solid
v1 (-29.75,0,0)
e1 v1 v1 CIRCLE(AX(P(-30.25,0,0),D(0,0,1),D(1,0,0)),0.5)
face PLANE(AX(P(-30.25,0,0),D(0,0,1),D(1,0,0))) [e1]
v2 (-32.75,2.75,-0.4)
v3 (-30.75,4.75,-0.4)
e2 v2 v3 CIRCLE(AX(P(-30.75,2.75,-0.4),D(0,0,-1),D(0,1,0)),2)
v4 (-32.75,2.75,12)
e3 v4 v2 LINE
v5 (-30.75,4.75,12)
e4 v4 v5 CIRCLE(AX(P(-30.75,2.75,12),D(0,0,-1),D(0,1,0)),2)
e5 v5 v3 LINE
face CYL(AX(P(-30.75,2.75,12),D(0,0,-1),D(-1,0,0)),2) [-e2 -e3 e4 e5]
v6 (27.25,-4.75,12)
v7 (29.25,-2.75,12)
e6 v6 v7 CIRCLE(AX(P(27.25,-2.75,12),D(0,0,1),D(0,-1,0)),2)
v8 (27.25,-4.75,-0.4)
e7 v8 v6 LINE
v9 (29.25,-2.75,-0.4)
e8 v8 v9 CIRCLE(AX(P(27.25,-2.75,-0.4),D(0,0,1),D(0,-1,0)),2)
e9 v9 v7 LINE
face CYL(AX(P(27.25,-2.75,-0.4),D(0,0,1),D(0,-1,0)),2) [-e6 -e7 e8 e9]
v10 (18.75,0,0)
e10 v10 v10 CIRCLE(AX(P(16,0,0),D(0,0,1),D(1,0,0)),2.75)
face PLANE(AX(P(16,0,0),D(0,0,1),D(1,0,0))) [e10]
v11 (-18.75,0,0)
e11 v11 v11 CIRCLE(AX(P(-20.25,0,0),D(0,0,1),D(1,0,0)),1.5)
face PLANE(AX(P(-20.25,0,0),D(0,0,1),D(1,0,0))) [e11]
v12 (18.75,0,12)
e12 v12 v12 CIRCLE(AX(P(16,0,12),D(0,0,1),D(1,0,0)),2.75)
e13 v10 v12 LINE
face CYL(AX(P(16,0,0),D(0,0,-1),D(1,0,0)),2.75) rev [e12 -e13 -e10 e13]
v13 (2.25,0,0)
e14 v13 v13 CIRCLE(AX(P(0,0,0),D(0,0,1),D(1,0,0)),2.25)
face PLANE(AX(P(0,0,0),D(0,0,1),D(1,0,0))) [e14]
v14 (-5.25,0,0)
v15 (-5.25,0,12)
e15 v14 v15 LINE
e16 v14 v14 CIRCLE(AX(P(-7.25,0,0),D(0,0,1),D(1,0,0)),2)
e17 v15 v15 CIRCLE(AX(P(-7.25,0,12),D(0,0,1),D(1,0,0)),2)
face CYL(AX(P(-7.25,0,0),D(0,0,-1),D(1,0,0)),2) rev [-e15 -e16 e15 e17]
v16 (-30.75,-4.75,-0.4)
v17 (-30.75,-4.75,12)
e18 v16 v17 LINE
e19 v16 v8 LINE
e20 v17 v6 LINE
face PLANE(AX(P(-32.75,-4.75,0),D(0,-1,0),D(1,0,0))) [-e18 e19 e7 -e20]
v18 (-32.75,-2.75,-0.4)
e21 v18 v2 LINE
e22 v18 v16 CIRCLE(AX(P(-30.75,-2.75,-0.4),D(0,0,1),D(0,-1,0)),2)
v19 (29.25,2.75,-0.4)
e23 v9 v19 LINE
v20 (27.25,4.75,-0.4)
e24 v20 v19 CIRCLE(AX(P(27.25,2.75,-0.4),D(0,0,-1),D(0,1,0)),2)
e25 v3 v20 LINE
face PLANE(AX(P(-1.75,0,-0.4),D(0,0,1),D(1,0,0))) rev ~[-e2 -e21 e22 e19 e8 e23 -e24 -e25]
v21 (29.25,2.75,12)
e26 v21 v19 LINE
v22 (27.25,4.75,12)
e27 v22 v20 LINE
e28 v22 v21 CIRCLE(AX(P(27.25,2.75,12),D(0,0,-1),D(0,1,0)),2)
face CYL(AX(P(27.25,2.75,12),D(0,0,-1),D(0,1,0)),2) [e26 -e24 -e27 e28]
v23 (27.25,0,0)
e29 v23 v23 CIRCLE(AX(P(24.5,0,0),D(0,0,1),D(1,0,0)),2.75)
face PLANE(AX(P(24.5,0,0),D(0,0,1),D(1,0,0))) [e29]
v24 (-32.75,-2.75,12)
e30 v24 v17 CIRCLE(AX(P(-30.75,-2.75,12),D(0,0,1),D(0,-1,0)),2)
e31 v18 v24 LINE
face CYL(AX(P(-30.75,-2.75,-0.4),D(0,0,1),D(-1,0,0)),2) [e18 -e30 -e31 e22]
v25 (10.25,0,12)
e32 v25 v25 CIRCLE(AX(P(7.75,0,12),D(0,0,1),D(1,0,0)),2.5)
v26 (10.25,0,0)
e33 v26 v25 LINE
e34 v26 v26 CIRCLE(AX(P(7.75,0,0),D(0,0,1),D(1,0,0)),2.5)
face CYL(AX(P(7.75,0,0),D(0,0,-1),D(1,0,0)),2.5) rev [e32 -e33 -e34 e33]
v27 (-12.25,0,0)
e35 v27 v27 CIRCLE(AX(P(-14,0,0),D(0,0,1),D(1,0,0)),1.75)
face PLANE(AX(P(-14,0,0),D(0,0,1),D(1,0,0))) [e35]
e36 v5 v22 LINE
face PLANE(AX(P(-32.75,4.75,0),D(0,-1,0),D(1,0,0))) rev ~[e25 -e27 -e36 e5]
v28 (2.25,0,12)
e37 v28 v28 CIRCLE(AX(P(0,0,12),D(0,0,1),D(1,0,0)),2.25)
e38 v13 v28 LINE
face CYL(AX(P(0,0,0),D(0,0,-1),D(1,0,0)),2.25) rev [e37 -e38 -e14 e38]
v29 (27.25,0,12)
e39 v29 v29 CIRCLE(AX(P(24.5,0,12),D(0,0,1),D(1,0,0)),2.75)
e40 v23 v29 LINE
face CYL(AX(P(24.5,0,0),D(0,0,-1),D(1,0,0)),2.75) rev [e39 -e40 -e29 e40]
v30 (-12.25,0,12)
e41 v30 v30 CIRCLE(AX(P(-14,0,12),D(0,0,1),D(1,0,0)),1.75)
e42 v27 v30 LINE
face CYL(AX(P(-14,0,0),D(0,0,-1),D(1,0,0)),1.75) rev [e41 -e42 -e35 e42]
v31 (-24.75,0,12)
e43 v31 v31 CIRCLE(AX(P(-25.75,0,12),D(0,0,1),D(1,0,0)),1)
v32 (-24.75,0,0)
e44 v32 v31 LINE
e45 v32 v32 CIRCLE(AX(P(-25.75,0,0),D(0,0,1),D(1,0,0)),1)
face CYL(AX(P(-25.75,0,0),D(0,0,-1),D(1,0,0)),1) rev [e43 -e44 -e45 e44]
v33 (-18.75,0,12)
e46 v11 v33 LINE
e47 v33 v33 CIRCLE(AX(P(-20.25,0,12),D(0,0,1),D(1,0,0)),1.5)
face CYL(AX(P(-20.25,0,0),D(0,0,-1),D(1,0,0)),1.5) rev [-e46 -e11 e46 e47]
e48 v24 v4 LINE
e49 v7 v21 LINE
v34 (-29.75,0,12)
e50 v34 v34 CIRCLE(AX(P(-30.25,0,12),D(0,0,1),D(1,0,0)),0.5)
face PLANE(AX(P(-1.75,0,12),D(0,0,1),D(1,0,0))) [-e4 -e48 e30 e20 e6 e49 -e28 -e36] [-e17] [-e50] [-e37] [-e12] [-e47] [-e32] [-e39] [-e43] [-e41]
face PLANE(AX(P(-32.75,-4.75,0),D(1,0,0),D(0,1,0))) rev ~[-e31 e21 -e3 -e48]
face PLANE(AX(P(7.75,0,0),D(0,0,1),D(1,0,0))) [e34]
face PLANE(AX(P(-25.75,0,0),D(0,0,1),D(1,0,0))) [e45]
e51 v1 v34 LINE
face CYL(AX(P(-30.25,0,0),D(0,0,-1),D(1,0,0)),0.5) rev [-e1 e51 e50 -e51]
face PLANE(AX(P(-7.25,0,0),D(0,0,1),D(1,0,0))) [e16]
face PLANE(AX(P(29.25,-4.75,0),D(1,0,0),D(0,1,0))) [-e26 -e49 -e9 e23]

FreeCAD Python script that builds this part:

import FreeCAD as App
import Part
import Sketcher

V = App.Vector
Q = App.Units.Quantity


def edges_at(feature, points):
    """Names of the edges that pass closest to the given points."""
    edges = feature.Shape.Edges
    near = lambda p: min(range(len(edges)), key=lambda i: edges[i].distToShape(Part.Vertex(*p))[0])
    return sorted({f"Edge{near(p) + 1}" for p in points})

doc = App.newDocument("Part")
body = doc.addObject("PartDesign::Body", "Body")

# Sketch on XY plane
sketch1 = body.newObject("Sketcher::SketchObject", "Sketch")
sketch1.AttachmentSupport = (doc.getObject("XY_Plane"), [""])
sketch1.MapMode = "FlatFace"
sketch1.addGeometry(Part.LineSegment(V(-32.8, 4.8, 0), V(-32.8, -4.8, 0)), False)
sketch1.addGeometry(Part.LineSegment(V(-32.8, -4.8, 0), V(29.2, -4.8, 0)), False)
sketch1.addGeometry(Part.LineSegment(V(29.2, -4.8, 0), V(29.2, 4.8, 0)), False)
sketch1.addGeometry(Part.LineSegment(V(29.2, 4.8, 0), V(-32.8, 4.8, 0)), False)
sketch1.addGeometry(Part.Circle(V(-30.2, 0, 0), V(0, 0, 1), 0.5), False)
sketch1.addGeometry(Part.Circle(V(-25.8, 0, 0), V(0, 0, 1), 1), False)
sketch1.addGeometry(Part.Circle(V(-20.2, 0, 0), V(0, 0, 1), 1.5), False)
sketch1.addGeometry(Part.Circle(V(-14, 0, 0), V(0, 0, 1), 1.8), False)
sketch1.addGeometry(Part.Circle(V(-7.2, 0, 0), V(0, 0, 1), 2), False)
sketch1.addGeometry(Part.Circle(V(0, 0, 0), V(0, 0, 1), 2.2), False)
sketch1.addGeometry(Part.Circle(V(7.8, 0, 0), V(0, 0, 1), 2.5), False)
sketch1.addGeometry(Part.Circle(V(16, 0, 0), V(0, 0, 1), 2.8), False)
sketch1.addGeometry(Part.Circle(V(24.5, 0, 0), V(0, 0, 1), 2.8), False)
sketch1.addConstraint(Sketcher.Constraint("Coincident", 0, 2, 1, 1))
sketch1.addConstraint(Sketcher.Constraint("Coincident", 1, 2, 2, 1))
sketch1.addConstraint(Sketcher.Constraint("Coincident", 2, 2, 3, 1))
sketch1.addConstraint(Sketcher.Constraint("Coincident", 3, 2, 0, 1))
sketch1.addConstraint(Sketcher.Constraint("Vertical", 0))
sketch1.addConstraint(Sketcher.Constraint("Horizontal", 1))
sketch1.addConstraint(Sketcher.Constraint("Vertical", 2))
sketch1.addConstraint(Sketcher.Constraint("Horizontal", 3))
sketch1.addConstraint(Sketcher.Constraint("Coincident", 9, 3, -1, 1))
sketch1.addConstraint(Sketcher.Constraint("Equal", 11, 12))
sketch1.addConstraint(Sketcher.Constraint("PointOnObject", 4, 3, -1))
sketch1.addConstraint(Sketcher.Constraint("PointOnObject", 5, 3, -1))
sketch1.addConstraint(Sketcher.Constraint("PointOnObject", 6, 3, -1))
sketch1.addConstraint(Sketcher.Constraint("PointOnObject", 7, 3, -1))
sketch1.addConstraint(Sketcher.Constraint("PointOnObject", 8, 3, -1))
sketch1.addConstraint(Sketcher.Constraint("PointOnObject", 10, 3, -1))
sketch1.addConstraint(Sketcher.Constraint("PointOnObject", 11, 3, -1))
sketch1.addConstraint(Sketcher.Constraint("PointOnObject", 12, 3, -1))
sketch1.addConstraint(Sketcher.Constraint("Diameter", 4, Q("1 mm")))
sketch1.addConstraint(Sketcher.Constraint("Diameter", 5, Q("2 mm")))
sketch1.addConstraint(Sketcher.Constraint("Diameter", 6, Q("3 mm")))
sketch1.addConstraint(Sketcher.Constraint("Diameter", 8, Q("4 mm")))
sketch1.addConstraint(Sketcher.Constraint("Diameter", 10, Q("5 mm")))
sketch1.addConstraint(Sketcher.Constraint("Diameter", 7, Q("3.5 mm")))
sketch1.addConstraint(Sketcher.Constraint("Diameter", 9, Q("4.5 mm")))
sketch1.addConstraint(Sketcher.Constraint("Diameter", 11, Q("5.5 mm")))
sketch1.addConstraint(Sketcher.Constraint("DistanceX", 1, 1, 1, 2, Q("62 mm")))
sketch1.addConstraint(Sketcher.Constraint("DistanceY", 0, 2, 0, 1, Q("9.5 mm")))
sketch1.addConstraint(Sketcher.Constraint("DistanceX", 7, 3, -1, 1, Q("14 mm")))
sketch1.addConstraint(Sketcher.Constraint("DistanceX", -1, 1, 11, 3, Q("16 mm")))
sketch1.addConstraint(Sketcher.Constraint("DistanceX", 4, 3, 6, 3, Q("10 mm")))
sketch1.addConstraint(Sketcher.Constraint("DistanceX", 6, 3, 8, 3, Q("13 mm")))
sketch1.addConstraint(Sketcher.Constraint("DistanceX", 8, 3, 10, 3, Q("15 mm")))
sketch1.addConstraint(Sketcher.Constraint("DistanceX", 0, 2, 5, 3, Q("7 mm")))
sketch1.addConstraint(Sketcher.Constraint("DistanceX", -1, 1, 12, 3, Q("24.5 mm")))
sketch1.addConstraint(Sketcher.Constraint("DistanceX", 4, 3, 5, 3, Q("4.5 mm")))
sketch1.addConstraint(Sketcher.Constraint("DistanceX", 4, 3, -1, 1, Q("30.25 mm")))
sketch1.addConstraint(Sketcher.Constraint("DistanceY", 0, 2, -1, 1, Q("4.75 mm")))
pad1 = body.newObject("PartDesign::Pad", "Pad")
pad1.Profile = sketch1
pad1.Type = "TwoLengths"
pad1.Length = 12
pad1.Length2 = 0.4

# Sketch on XY plane
sketch2 = body.newObject("Sketcher::SketchObject", "Sketch001")
sketch2.AttachmentSupport = (doc.getObject("XY_Plane"), [""])
sketch2.MapMode = "FlatFace"
sketch2.addGeometry(Part.Circle(V(-25.8, 0, 0), V(0, 0, 1), 1), False)
sketch2.addGeometry(Part.Circle(V(-20.2, 0, 0), V(0, 0, 1), 1.5), False)
sketch2.addGeometry(Part.Circle(V(-30.2, 0, 0), V(0, 0, 1), 0.5), False)
sketch2.addGeometry(Part.Circle(V(-14, 0, 0), V(0, 0, 1), 1.8), False)
sketch2.addGeometry(Part.Circle(V(-7.2, 0, 0), V(0, 0, 1), 2), False)
sketch2.addGeometry(Part.Circle(V(0, 0, 0), V(0, 0, 1), 2.2), False)
sketch2.addGeometry(Part.Circle(V(7.8, 0, 0), V(0, 0, 1), 2.5), False)
sketch2.addGeometry(Part.Circle(V(16, 0, 0), V(0, 0, 1), 2.8), False)
sketch2.addGeometry(Part.Circle(V(24.5, 0, 0), V(0, 0, 1), 2.8), False)
sketch2.addConstraint(Sketcher.Constraint("Coincident", 5, 3, -1, 1))
sketch2.addConstraint(Sketcher.Constraint("Equal", 7, 8))
sketch2.addConstraint(Sketcher.Constraint("PointOnObject", 0, 3, -1))
sketch2.addConstraint(Sketcher.Constraint("PointOnObject", 1, 3, -1))
sketch2.addConstraint(Sketcher.Constraint("PointOnObject", 2, 3, -1))
sketch2.addConstraint(Sketcher.Constraint("PointOnObject", 3, 3, -1))
sketch2.addConstraint(Sketcher.Constraint("PointOnObject", 4, 3, -1))
sketch2.addConstraint(Sketcher.Constraint("PointOnObject", 6, 3, -1))
sketch2.addConstraint(Sketcher.Constraint("PointOnObject", 7, 3, -1))
sketch2.addConstraint(Sketcher.Constraint("PointOnObject", 8, 3, -1))
sketch2.addConstraint(Sketcher.Constraint("Diameter", 0, Q("2 mm")))
sketch2.addConstraint(Sketcher.Constraint("Diameter", 1, Q("3 mm")))
sketch2.addConstraint(Sketcher.Constraint("Diameter", 2, Q("1 mm")))
sketch2.addConstraint(Sketcher.Constraint("Diameter", 4, Q("4 mm")))
sketch2.addConstraint(Sketcher.Constraint("Diameter", 6, Q("5 mm")))
sketch2.addConstraint(Sketcher.Constraint("Diameter", 3, Q("3.5 mm")))
sketch2.addConstraint(Sketcher.Constraint("Diameter", 5, Q("4.5 mm")))
sketch2.addConstraint(Sketcher.Constraint("Diameter", 7, Q("5.5 mm")))
sketch2.addConstraint(Sketcher.Constraint("DistanceX", 3, 3, -1, 1, Q("14 mm")))
sketch2.addConstraint(Sketcher.Constraint("DistanceX", -1, 1, 7, 3, Q("16 mm")))
sketch2.addConstraint(Sketcher.Constraint("DistanceX", 2, 3, 1, 3, Q("10 mm")))
sketch2.addConstraint(Sketcher.Constraint("DistanceX", 1, 3, 4, 3, Q("13 mm")))
sketch2.addConstraint(Sketcher.Constraint("DistanceX", 4, 3, 6, 3, Q("15 mm")))
sketch2.addConstraint(Sketcher.Constraint("DistanceX", -1, 1, 8, 3, Q("24.5 mm")))
sketch2.addConstraint(Sketcher.Constraint("DistanceX", 0, 3, 1, 3, Q("5.5 mm")))
sketch2.addConstraint(Sketcher.Constraint("DistanceX", 0, 3, -1, 1, Q("25.75 mm")))
pad2 = body.newObject("PartDesign::Pad", "Pad001")
pad2.Profile = sketch2
pad2.Length = 0.4
pad2.Reversed = True
doc.recompute()

fillet = body.newObject("PartDesign::Fillet", "Fillet")
fillet.Base = (pad2, edges_at(pad2, [
    (-32.75, -4.75, 5.8),
    (29.25, -4.75, 5.8),
    (29.25, 4.75, 5.8),
    (-32.75, 4.75, 5.8),
]))
fillet.Radius = 2

doc.recompute()
